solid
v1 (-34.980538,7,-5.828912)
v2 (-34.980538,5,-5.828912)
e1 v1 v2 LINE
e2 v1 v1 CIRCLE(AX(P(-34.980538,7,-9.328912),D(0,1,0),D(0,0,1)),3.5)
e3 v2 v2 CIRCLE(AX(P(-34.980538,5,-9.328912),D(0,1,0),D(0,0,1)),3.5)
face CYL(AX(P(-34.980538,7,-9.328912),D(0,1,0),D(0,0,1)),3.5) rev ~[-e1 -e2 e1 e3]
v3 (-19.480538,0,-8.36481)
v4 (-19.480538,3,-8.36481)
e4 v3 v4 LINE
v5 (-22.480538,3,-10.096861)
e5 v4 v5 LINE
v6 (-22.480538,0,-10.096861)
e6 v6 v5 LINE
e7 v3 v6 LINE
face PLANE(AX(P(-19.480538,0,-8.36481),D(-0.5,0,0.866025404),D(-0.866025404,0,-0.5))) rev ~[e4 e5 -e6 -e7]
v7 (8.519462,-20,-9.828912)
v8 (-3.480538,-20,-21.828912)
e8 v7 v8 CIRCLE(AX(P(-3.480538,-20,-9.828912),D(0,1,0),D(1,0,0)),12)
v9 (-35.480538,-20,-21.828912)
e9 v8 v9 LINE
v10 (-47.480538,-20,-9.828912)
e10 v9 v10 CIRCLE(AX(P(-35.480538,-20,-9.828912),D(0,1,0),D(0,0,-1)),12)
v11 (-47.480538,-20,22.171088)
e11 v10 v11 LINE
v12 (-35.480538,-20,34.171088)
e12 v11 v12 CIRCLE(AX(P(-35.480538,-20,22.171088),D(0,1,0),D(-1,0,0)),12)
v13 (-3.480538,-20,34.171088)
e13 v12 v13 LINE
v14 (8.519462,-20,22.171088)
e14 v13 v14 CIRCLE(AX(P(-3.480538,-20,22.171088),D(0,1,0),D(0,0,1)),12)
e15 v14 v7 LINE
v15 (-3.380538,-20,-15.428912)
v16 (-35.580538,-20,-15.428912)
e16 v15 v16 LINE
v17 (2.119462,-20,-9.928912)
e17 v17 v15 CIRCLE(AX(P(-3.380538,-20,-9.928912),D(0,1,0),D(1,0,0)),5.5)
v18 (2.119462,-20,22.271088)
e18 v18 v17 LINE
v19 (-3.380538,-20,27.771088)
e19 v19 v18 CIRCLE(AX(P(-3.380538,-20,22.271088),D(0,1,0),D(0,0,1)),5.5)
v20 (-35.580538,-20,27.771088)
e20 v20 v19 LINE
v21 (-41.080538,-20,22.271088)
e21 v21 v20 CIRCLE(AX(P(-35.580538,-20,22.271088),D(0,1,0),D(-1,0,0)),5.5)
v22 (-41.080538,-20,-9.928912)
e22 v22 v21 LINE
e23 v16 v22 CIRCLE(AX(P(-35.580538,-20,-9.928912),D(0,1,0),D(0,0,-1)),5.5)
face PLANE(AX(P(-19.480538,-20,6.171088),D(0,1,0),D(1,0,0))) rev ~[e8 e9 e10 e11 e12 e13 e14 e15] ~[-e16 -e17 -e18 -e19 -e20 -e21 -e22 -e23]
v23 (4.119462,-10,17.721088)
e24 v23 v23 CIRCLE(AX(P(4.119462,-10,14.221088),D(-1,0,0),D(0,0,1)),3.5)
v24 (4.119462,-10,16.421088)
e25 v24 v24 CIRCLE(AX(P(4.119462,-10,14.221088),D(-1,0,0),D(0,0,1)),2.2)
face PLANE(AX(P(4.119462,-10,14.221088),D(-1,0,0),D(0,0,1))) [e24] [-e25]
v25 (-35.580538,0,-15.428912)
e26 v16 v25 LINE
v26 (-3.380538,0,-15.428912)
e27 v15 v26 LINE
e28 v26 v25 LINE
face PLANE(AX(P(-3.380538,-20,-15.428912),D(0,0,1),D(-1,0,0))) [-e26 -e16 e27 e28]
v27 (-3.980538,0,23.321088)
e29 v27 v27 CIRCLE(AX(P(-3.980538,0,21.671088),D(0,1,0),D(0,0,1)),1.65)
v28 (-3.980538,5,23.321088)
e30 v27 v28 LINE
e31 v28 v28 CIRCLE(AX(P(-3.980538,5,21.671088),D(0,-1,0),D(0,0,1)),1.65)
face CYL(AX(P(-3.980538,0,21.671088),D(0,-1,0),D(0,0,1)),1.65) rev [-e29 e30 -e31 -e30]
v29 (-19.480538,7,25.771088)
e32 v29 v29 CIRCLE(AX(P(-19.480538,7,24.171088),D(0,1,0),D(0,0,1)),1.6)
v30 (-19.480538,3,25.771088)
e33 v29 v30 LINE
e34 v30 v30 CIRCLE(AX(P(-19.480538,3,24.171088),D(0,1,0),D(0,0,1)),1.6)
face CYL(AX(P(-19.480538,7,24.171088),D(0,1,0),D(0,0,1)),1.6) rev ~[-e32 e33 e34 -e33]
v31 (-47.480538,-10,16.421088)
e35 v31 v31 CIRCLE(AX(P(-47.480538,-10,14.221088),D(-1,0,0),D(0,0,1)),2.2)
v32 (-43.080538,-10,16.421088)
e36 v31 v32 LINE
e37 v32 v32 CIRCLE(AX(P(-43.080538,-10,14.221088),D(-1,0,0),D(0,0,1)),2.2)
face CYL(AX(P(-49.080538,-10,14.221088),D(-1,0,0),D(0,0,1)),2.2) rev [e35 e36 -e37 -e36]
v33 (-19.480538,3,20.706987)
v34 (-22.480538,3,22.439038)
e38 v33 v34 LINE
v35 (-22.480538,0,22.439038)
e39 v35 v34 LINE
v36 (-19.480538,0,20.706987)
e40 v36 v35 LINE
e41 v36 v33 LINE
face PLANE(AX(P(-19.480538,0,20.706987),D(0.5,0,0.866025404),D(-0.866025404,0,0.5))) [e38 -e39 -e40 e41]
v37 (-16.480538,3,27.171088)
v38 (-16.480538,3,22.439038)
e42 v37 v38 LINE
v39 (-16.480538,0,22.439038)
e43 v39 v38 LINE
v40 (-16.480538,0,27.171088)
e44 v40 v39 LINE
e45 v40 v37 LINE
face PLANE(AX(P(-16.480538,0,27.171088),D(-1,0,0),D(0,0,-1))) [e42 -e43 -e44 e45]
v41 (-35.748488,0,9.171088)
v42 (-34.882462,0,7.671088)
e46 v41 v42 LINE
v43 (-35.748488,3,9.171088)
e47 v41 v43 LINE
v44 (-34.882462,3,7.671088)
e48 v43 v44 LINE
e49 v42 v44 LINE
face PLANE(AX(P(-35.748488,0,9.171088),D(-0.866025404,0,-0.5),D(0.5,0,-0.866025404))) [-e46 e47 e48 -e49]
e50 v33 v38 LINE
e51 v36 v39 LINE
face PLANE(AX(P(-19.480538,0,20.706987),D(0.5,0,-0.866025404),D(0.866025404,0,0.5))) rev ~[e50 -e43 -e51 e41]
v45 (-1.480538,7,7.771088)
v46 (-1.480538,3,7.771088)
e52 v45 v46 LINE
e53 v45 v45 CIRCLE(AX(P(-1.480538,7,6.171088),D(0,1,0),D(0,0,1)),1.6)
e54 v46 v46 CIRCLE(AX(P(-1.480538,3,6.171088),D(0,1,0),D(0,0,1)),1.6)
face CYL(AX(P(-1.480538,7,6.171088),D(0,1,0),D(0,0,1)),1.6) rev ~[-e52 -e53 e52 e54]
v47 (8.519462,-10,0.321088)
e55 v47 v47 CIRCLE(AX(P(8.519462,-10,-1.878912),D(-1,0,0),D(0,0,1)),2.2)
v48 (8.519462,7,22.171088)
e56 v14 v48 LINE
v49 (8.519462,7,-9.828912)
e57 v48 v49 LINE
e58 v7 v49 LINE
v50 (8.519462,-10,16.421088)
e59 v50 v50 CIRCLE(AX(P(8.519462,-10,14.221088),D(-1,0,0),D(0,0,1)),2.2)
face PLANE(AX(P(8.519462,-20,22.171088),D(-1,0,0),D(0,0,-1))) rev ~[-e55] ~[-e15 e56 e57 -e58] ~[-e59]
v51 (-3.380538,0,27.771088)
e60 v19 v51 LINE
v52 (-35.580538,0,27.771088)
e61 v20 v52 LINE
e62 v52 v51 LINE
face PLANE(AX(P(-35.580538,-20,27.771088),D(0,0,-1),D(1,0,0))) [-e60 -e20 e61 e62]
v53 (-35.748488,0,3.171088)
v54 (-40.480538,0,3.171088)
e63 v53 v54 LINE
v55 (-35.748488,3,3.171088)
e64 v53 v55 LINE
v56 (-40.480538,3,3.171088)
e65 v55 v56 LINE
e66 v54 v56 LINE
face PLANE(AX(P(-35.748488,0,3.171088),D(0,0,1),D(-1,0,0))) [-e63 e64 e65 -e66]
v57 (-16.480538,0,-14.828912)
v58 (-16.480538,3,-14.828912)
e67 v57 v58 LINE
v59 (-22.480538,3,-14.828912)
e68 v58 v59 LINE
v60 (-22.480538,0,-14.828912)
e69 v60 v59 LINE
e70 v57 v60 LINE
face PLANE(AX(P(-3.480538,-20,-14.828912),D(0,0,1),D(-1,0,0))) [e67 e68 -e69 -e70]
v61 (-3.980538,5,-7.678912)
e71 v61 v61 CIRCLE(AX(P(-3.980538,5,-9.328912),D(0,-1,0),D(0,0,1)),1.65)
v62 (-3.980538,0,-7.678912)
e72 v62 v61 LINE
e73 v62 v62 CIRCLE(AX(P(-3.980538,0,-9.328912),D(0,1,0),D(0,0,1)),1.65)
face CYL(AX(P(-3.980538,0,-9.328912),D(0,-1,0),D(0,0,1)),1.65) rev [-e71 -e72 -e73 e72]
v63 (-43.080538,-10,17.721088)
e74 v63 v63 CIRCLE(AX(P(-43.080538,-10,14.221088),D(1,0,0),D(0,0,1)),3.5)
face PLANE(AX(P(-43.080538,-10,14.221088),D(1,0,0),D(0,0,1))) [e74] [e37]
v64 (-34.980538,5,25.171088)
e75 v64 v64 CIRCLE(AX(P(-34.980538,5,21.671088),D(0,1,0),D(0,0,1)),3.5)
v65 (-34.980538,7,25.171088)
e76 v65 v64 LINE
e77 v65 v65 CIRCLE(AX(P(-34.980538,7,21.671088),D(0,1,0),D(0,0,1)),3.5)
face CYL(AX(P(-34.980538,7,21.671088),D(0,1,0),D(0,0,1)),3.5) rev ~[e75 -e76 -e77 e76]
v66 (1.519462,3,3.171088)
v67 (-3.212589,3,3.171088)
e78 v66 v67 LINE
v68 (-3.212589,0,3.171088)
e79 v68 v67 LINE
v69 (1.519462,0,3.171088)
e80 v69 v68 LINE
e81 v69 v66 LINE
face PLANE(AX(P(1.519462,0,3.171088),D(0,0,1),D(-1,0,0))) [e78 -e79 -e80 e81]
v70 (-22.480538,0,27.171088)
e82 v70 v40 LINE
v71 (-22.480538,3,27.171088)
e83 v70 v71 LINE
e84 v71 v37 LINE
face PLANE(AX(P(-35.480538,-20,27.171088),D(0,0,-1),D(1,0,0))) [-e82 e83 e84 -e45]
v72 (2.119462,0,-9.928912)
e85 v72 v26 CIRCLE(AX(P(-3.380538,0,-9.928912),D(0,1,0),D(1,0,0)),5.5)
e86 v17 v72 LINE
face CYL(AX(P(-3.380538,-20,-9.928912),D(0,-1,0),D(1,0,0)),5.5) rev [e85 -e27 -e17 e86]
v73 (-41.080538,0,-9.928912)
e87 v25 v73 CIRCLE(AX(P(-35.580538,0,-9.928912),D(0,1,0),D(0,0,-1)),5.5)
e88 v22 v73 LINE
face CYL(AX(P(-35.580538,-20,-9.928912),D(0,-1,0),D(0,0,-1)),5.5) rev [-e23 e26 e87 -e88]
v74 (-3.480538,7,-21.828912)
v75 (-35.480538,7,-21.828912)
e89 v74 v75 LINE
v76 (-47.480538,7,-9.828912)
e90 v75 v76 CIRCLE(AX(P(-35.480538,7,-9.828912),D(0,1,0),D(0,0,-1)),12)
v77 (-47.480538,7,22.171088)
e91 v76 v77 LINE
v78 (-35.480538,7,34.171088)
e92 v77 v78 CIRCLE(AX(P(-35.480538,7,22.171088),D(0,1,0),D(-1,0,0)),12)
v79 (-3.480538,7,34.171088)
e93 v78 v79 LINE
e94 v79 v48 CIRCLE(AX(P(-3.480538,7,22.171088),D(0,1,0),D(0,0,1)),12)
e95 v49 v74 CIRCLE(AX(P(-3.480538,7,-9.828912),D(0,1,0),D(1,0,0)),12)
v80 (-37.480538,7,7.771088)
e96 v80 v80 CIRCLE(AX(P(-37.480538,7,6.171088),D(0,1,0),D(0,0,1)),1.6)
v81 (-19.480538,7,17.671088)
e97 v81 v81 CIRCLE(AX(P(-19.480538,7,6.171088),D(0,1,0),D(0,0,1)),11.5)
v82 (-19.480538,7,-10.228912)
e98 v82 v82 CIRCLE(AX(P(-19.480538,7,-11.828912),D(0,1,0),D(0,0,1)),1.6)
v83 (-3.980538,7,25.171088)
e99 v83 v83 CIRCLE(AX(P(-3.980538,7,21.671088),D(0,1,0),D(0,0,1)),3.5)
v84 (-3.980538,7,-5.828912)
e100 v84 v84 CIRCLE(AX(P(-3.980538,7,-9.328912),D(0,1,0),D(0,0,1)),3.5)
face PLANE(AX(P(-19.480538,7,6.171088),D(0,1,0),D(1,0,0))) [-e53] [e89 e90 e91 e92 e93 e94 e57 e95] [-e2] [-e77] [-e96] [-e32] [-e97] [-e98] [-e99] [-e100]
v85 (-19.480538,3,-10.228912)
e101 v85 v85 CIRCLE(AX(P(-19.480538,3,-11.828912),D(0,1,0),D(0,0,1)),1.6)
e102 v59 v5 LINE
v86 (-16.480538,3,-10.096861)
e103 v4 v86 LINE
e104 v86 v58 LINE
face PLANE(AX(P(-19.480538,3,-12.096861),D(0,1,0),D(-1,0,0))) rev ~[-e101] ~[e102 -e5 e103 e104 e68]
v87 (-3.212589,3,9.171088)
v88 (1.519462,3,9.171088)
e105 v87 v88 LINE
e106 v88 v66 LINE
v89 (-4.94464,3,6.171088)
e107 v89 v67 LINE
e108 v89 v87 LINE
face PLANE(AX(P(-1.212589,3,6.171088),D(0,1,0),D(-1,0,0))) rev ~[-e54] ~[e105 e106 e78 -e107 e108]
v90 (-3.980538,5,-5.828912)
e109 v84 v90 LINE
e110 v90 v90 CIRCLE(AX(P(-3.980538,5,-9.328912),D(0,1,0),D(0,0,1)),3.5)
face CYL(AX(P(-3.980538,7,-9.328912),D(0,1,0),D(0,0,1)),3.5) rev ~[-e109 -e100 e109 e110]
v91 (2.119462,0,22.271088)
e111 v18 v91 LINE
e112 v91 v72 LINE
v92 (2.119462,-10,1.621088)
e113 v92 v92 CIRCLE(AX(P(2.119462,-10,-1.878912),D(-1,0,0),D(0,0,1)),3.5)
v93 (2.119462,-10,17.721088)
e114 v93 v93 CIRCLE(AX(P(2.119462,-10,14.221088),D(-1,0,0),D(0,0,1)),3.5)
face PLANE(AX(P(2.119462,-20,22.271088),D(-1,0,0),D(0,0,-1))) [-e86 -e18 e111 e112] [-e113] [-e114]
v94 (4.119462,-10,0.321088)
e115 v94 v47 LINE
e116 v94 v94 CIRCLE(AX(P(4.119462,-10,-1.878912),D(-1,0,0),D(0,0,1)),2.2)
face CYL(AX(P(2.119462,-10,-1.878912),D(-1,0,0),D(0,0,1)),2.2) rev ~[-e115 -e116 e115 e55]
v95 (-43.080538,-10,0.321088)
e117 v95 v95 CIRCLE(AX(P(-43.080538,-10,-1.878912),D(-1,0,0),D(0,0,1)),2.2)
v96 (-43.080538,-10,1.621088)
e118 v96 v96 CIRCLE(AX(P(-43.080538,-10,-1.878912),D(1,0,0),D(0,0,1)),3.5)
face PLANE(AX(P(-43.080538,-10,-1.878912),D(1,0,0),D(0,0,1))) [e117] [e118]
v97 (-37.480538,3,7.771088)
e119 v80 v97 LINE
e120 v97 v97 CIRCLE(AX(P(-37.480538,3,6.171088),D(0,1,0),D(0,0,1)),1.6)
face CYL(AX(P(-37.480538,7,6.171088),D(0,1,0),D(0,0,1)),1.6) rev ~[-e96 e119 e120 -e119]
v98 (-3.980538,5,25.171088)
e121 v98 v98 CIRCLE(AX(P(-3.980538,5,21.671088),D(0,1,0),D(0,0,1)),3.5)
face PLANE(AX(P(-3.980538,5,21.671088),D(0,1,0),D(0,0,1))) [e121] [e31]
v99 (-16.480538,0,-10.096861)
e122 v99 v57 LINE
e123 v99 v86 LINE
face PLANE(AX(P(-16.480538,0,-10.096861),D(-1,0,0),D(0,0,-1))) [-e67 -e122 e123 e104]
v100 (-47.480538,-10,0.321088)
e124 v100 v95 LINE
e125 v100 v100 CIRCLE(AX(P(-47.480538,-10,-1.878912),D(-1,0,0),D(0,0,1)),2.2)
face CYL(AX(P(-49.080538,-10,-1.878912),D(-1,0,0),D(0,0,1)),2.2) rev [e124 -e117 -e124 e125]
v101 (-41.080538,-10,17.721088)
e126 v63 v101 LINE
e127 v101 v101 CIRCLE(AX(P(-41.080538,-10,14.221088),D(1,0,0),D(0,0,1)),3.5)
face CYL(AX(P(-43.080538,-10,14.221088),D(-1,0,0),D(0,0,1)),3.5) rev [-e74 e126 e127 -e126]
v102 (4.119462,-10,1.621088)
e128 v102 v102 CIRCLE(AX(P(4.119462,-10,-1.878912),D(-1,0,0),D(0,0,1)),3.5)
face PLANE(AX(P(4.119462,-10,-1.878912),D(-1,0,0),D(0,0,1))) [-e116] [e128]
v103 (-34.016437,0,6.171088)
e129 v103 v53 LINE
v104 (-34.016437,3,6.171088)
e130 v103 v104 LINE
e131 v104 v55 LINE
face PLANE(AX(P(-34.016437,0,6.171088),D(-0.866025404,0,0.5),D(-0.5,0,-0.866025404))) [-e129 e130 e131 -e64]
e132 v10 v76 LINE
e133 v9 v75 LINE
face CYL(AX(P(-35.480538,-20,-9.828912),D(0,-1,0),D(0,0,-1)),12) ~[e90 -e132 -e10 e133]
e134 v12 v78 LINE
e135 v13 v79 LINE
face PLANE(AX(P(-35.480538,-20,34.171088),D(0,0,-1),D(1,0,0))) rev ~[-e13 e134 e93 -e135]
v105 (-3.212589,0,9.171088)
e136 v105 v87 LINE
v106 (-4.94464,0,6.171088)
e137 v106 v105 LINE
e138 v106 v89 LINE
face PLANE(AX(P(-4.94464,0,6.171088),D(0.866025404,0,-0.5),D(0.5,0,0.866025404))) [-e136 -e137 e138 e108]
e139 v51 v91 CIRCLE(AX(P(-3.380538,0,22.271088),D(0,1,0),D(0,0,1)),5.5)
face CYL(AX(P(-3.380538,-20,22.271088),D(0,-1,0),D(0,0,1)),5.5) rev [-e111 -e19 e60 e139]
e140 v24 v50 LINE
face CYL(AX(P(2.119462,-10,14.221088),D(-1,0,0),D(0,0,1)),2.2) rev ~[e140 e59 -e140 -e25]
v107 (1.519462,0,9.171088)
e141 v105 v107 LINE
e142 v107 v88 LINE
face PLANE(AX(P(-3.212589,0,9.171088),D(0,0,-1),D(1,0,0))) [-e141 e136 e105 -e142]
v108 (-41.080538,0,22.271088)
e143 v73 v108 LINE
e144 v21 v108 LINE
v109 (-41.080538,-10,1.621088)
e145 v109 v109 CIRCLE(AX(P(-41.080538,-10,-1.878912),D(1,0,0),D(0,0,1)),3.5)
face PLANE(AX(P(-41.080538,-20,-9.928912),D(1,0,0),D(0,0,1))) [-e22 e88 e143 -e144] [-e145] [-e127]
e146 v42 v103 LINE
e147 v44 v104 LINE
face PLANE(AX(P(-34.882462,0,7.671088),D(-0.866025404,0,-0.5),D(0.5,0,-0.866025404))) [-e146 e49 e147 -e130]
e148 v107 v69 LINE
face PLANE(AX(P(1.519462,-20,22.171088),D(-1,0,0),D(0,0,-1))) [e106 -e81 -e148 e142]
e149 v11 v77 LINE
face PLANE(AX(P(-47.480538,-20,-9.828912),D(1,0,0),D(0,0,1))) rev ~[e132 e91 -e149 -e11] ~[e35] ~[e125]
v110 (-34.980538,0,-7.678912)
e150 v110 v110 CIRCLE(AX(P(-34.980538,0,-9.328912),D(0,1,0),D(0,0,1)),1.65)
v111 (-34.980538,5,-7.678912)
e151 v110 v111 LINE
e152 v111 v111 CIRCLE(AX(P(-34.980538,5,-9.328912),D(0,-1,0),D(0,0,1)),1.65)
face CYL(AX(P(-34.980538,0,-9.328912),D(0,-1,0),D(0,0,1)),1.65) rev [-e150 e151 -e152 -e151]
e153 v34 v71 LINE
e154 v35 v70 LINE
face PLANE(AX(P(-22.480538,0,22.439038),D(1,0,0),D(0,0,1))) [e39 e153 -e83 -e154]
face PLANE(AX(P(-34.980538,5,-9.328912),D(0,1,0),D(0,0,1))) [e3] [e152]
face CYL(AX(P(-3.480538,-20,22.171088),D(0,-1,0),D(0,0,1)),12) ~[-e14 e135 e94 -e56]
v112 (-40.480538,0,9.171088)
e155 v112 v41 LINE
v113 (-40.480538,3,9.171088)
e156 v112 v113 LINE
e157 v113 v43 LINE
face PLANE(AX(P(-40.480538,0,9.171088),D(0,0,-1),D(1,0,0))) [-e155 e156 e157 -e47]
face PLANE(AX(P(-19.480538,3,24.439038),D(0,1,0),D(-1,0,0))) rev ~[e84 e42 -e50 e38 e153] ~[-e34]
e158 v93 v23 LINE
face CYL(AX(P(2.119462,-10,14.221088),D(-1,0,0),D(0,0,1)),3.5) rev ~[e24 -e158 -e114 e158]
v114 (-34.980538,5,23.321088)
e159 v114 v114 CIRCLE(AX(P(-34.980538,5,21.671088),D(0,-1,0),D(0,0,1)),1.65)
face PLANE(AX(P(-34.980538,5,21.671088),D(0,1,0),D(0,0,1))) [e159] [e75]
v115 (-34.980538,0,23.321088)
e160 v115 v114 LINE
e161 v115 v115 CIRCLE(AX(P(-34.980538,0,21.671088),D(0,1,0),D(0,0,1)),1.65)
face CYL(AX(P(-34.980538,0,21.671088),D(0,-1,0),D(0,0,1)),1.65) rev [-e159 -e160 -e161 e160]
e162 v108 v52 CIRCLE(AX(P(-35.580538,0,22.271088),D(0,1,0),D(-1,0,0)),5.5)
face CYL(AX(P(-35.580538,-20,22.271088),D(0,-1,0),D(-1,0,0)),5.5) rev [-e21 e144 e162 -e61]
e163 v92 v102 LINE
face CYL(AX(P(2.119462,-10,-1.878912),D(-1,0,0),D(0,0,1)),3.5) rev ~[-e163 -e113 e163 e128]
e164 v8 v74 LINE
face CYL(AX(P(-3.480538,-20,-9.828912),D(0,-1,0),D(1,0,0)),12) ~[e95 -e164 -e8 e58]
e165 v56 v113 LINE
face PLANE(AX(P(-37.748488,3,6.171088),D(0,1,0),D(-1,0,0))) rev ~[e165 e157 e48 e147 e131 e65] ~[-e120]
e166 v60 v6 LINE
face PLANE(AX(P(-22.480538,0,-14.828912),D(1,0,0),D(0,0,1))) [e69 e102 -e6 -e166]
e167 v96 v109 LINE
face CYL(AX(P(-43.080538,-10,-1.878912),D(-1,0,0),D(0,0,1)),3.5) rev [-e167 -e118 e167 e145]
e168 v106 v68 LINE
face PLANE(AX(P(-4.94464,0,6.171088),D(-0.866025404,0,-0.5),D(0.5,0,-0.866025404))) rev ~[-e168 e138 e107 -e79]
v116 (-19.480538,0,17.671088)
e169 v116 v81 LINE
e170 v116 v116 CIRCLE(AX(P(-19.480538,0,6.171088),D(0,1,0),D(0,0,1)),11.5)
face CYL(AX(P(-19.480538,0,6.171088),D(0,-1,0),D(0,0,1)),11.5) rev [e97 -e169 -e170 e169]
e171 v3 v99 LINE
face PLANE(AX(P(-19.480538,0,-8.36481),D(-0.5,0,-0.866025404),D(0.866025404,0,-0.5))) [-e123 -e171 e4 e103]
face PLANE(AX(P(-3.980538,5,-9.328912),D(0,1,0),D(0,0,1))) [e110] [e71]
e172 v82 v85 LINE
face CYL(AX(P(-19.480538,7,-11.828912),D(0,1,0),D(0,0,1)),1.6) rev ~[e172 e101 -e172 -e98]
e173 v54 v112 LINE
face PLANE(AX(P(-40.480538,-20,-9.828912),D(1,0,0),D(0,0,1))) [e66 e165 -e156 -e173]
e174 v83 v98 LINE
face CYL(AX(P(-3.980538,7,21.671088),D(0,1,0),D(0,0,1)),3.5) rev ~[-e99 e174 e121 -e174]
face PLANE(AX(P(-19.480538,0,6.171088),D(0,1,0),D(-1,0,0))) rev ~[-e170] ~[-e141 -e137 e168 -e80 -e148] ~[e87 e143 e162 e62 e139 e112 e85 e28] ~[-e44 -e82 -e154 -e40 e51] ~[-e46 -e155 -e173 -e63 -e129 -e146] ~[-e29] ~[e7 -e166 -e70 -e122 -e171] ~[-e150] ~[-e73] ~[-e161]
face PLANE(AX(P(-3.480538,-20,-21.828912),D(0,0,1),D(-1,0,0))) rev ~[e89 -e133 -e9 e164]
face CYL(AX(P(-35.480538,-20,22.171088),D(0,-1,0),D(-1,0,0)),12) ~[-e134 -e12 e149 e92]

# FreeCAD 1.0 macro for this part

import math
import FreeCAD as App
import Part
import Sketcher

V = App.Vector
Q = App.Units.Quantity

doc = App.newDocument("Part")
body = doc.addObject("PartDesign::Body", "Body")

sketch1 = body.newObject("Sketcher::SketchObject", "Sketch")
sketch1.AttachmentSupport = (doc.getObject("XZ_Plane"), [""])
sketch1.MapMode = "FlatFace"
sketch1.addGeometry([
    Part.LineSegment(V(-3.5, -14.8, 0), V(-35.5, -14.8, 0)),
    Part.ArcOfCircle(Part.Circle(V(-35.5, -9.8, 0), V(0, 0, 1), 5), math.radians(180), math.radians(270)),
    Part.LineSegment(V(-40.5, -9.8, 0), V(-40.5, 22.2, 0)),
    Part.ArcOfCircle(Part.Circle(V(-35.5, 22.2, 0), V(0, 0, 1), 5), math.radians(90), math.radians(180)),
    Part.LineSegment(V(-35.5, 27.2, 0), V(-3.5, 27.2, 0)),
    Part.ArcOfCircle(Part.Circle(V(-3.5, 22.2, 0), V(0, 0, 1), 5), math.radians(0), math.radians(90)),
    Part.LineSegment(V(1.5, 22.2, 0), V(1.5, -9.8, 0)),
    Part.ArcOfCircle(Part.Circle(V(-3.5, -9.8, 0), V(0, 0, 1), 5), math.radians(-90), math.radians(0)),
    Part.Circle(V(-4, 21.7, 0), V(0, 0, 1), 1.6),
    Part.Circle(V(-35, 21.7, 0), V(0, 0, 1), 1.6),
    Part.Circle(V(-19.5, 6.2, 0), V(0, 0, 1), 11.5),
    Part.Circle(V(-4, -9.3, 0), V(0, 0, 1), 1.6),
    Part.Circle(V(-35, -9.3, 0), V(0, 0, 1), 1.6),
], False)
sketch1.addConstraint([
    Sketcher.Constraint("Tangent", 0, 2, 1, 2),
    Sketcher.Constraint("Tangent", 1, 1, 2, 1),
    Sketcher.Constraint("Tangent", 2, 2, 3, 2),
    Sketcher.Constraint("Tangent", 3, 1, 4, 1),
    Sketcher.Constraint("Tangent", 4, 2, 5, 2),
    Sketcher.Constraint("Tangent", 5, 1, 6, 1),
    Sketcher.Constraint("Tangent", 6, 2, 7, 2),
    Sketcher.Constraint("Tangent", 7, 1, 0, 1),
    Sketcher.Constraint("Horizontal", 0),
    Sketcher.Constraint("Vertical", 2),
    Sketcher.Constraint("Horizontal", 4),
    Sketcher.Constraint("Vertical", 6),
    Sketcher.Constraint("Equal", 1, 3),
    Sketcher.Constraint("Equal", 3, 5),
    Sketcher.Constraint("Equal", 5, 7),
    Sketcher.Constraint("Equal", 8, 9),
    Sketcher.Constraint("Equal", 9, 11),
    Sketcher.Constraint("Equal", 11, 12),
    Sketcher.Constraint("Horizontal", 8, 3, 9, 3),
    Sketcher.Constraint("Horizontal", 11, 3, 12, 3),
    Sketcher.Constraint("Vertical", 8, 3, 11, 3),
    Sketcher.Constraint("Vertical", 9, 3, 12, 3),
    Sketcher.Constraint("Equal", 4, 2),
    Sketcher.Constraint("Diameter", 10, Q("23 mm")),
    Sketcher.Constraint("Radius", 1, Q("5 mm")),
    Sketcher.Constraint("Diameter", 8, Q("3.3 mm")),
    Sketcher.Constraint("DistanceX", 0, 2, 0, 1, Q("32 mm")),
    Sketcher.Constraint("DistanceX", 9, 3, 8, 3, Q("31 mm")),
    Sketcher.Constraint("DistanceX", 1, 3, 10, 3, Q("16 mm")),
    Sketcher.Constraint("DistanceY", 1, 3, 10, 3, Q("16 mm")),
    Sketcher.Constraint("DistanceY", 11, 3, 8, 3, Q("31 mm")),
    Sketcher.Constraint("DistanceX", 8, 3, 5, 3, Q("0.5 mm")),
    Sketcher.Constraint("DistanceY", 8, 3, 5, 3, Q("0.5 mm")),
    Sketcher.Constraint("DistanceX", 1, 3, -1, 1, Q("35.480538 mm")),
    Sketcher.Constraint("DistanceY", 1, 3, -1, 1, Q("9.828912 mm")),
])
pad1 = body.newObject("PartDesign::Pad", "Pad")
pad1.Profile = sketch1
pad1.Length = 7
pad1.Reversed = True

sketch2 = body.newObject("Sketcher::SketchObject", "Sketch001")
sketch2.AttachmentSupport = (doc.getObject("XZ_Plane"), [""])
sketch2.MapMode = "FlatFace"
sketch2.addGeometry([
    Part.LineSegment(V(-16.5, 27.2, 0), V(-22.5, 27.2, 0)),
    Part.LineSegment(V(-22.5, 27.2, 0), V(-22.5, 22.4, 0)),
    Part.LineSegment(V(-22.5, 22.4, 0), V(-19.5, 20.7, 0)),
    Part.LineSegment(V(-19.5, 20.7, 0), V(-16.5, 22.4, 0)),
    Part.LineSegment(V(-16.5, 22.4, 0), V(-16.5, 27.2, 0)),
    Part.LineSegment(V(-3.2, 3.2, 0), V(1.5, 3.2, 0)),
    Part.LineSegment(V(1.5, 3.2, 0), V(1.5, 9.2, 0)),
    Part.LineSegment(V(1.5, 9.2, 0), V(-3.2, 9.2, 0)),
    Part.LineSegment(V(-3.2, 9.2, 0), V(-4.9, 6.2, 0)),
    Part.LineSegment(V(-4.9, 6.2, 0), V(-3.2, 3.2, 0)),
    Part.LineSegment(V(-22.5, -10.1, 0), V(-22.5, -14.8, 0)),
    Part.LineSegment(V(-22.5, -14.8, 0), V(-16.5, -14.8, 0)),
    Part.LineSegment(V(-16.5, -14.8, 0), V(-16.5, -10.1, 0)),
    Part.LineSegment(V(-16.5, -10.1, 0), V(-19.5, -8.4, 0)),
    Part.LineSegment(V(-19.5, -8.4, 0), V(-22.5, -10.1, 0)),
    Part.LineSegment(V(-35.7, 9.2, 0), V(-40.5, 9.2, 0)),
    Part.LineSegment(V(-40.5, 9.2, 0), V(-40.5, 3.2, 0)),
    Part.LineSegment(V(-40.5, 3.2, 0), V(-35.7, 3.2, 0)),
    Part.LineSegment(V(-35.7, 3.2, 0), V(-34, 6.2, 0)),
    Part.LineSegment(V(-34, 6.2, 0), V(-34.9, 7.7, 0)),
    Part.LineSegment(V(-34.9, 7.7, 0), V(-35.7, 9.2, 0)),
], False)
sketch2.addConstraint([
    Sketcher.Constraint("Coincident", 0, 2, 1, 1),
    Sketcher.Constraint("Coincident", 1, 2, 2, 1),
    Sketcher.Constraint("Coincident", 2, 2, 3, 1),
    Sketcher.Constraint("Coincident", 3, 2, 4, 1),
    Sketcher.Constraint("Coincident", 4, 2, 0, 1),
    Sketcher.Constraint("Coincident", 5, 2, 6, 1),
    Sketcher.Constraint("Coincident", 6, 2, 7, 1),
    Sketcher.Constraint("Coincident", 7, 2, 8, 1),
    Sketcher.Constraint("Coincident", 8, 2, 9, 1),
    Sketcher.Constraint("Coincident", 9, 2, 5, 1),
    Sketcher.Constraint("Coincident", 10, 2, 11, 1),
    Sketcher.Constraint("Coincident", 11, 2, 12, 1),
    Sketcher.Constraint("Coincident", 12, 2, 13, 1),
    Sketcher.Constraint("Coincident", 13, 2, 14, 1),
    Sketcher.Constraint("Coincident", 14, 2, 10, 1),
    Sketcher.Constraint("Coincident", 15, 2, 16, 1),
    Sketcher.Constraint("Coincident", 16, 2, 17, 1),
    Sketcher.Constraint("Coincident", 17, 2, 18, 1),
    Sketcher.Constraint("Coincident", 18, 2, 19, 1),
    Sketcher.Constraint("Coincident", 19, 2, 20, 1),
    Sketcher.Constraint("Coincident", 20, 2, 15, 1),
    Sketcher.Constraint("Horizontal", 0),
    Sketcher.Constraint("Vertical", 1),
    Sketcher.Constraint("Vertical", 4),
    Sketcher.Constraint("Horizontal", 5),
    Sketcher.Constraint("Vertical", 6),
    Sketcher.Constraint("Horizontal", 7),
    Sketcher.Constraint("Vertical", 10),
    Sketcher.Constraint("Horizontal", 11),
    Sketcher.Constraint("Vertical", 12),
    Sketcher.Constraint("Horizontal", 15),
    Sketcher.Constraint("Vertical", 16),
    Sketcher.Constraint("Horizontal", 17),
    Sketcher.Constraint("Perpendicular", 2, 8),
    Sketcher.Constraint("Perpendicular", 3, 9),
    Sketcher.Constraint("Perpendicular", 8, 13),
    Sketcher.Constraint("Perpendicular", 9, 14),
    Sketcher.Constraint("Perpendicular", 13, 18),
    Sketcher.Constraint("Perpendicular", 14, 19),
    Sketcher.Constraint("Parallel", 19, 20),
    Sketcher.Constraint("Horizontal", 1, 2, 3, 2),
    Sketcher.Constraint("Horizontal", 12, 2, 14, 2),
    Sketcher.Constraint("Horizontal", 7, 2, 15, 2),
    Sketcher.Constraint("Horizontal", 9, 2, 16, 2),
    Sketcher.Constraint("Horizontal", 8, 2, 18, 2),
    Sketcher.Constraint("Vertical", 7, 2, 9, 2),
    Sketcher.Constraint("Vertical", 1, 2, 10, 2),
    Sketcher.Constraint("Vertical", 4, 2, 11, 2),
    Sketcher.Constraint("Vertical", 2, 2, 13, 2),
    Sketcher.Constraint("Equal", 7, 15),
    Sketcher.Constraint("Equal", 17, 1),
    Sketcher.Constraint("Equal", 11, 6),
    Sketcher.Constraint("Equal", 4, 10),
    Sketcher.Constraint("Equal", 19, 20),
    Sketcher.Constraint("DistanceX", 0, 2, 0, 1, Q("6 mm")),
    Sketcher.Constraint("Angle", 2, Q("-30 deg")),
    Sketcher.Constraint("DistanceX", 3, 2, 5, 2, Q("18 mm")),
    Sketcher.Constraint("DistanceY", 5, 2, 4, 2, Q("24 mm")),
    Sketcher.Constraint("DistanceY", 10, 2, 9, 2, Q("18 mm")),
    Sketcher.Constraint("DistanceX", 15, 2, 1, 2, Q("18 mm")),
    Sketcher.Constraint("DistanceX", 5, 1, 5, 2, Q("4.732051 mm")),
    Sketcher.Constraint("DistanceX", 0, 2, -1, 1, Q("22.480538 mm")),
    Sketcher.Constraint("DistanceY", -1, 1, 0, 2, Q("27.171088 mm")),
])
pocket1 = body.newObject("PartDesign::Pocket", "Pocket")
pocket1.Profile = sketch2
pocket1.Length = 3

sketch3 = body.newObject("Sketcher::SketchObject", "Sketch002")
sketch3.AttachmentSupport = (doc.getObject("XZ_Plane"), [""])
sketch3.MapMode = "FlatFace"
sketch3.AttachmentOffset = App.Placement(V(0, 0, 20), App.Rotation())
sketch3.addGeometry([
    Part.LineSegment(V(-47, -10, 0), V(-47, 22, 0)),
    Part.ArcOfCircle(Part.Circle(V(-35, 22, 0), V(0, 0, 1), 12), math.radians(90), math.radians(180)),
    Part.LineSegment(V(-35, 34, 0), V(-3, 34, 0)),
    Part.ArcOfCircle(Part.Circle(V(-3, 22, 0), V(0, 0, 1), 12), math.radians(0), math.radians(90)),
    Part.LineSegment(V(9, 22, 0), V(9, -10, 0)),
    Part.ArcOfCircle(Part.Circle(V(-3, -10, 0), V(0, 0, 1), 12), math.radians(-90), math.radians(0)),
    Part.LineSegment(V(-3, -22, 0), V(-35, -22, 0)),
    Part.ArcOfCircle(Part.Circle(V(-35, -10, 0), V(0, 0, 1), 12), math.radians(-180), math.radians(-90)),
    Part.ArcOfCircle(Part.Circle(V(-35, -10, 0), V(0, 0, 1), 5), math.radians(180), math.radians(270)),
    Part.LineSegment(V(-35, -15, 0), V(-3, -15, 0)),
    Part.ArcOfCircle(Part.Circle(V(-3, -10, 0), V(0, 0, 1), 5), math.radians(-90), math.radians(0)),
    Part.LineSegment(V(2, -10, 0), V(2, 22, 0)),
    Part.ArcOfCircle(Part.Circle(V(-3, 22, 0), V(0, 0, 1), 5), math.radians(0), math.radians(90)),
    Part.LineSegment(V(-3, 27, 0), V(-35, 27, 0)),
    Part.ArcOfCircle(Part.Circle(V(-35, 22, 0), V(0, 0, 1), 5), math.radians(90), math.radians(180)),
    Part.LineSegment(V(-40, 22, 0), V(-40, -10, 0)),
], False)
sketch3.addConstraint([
    Sketcher.Constraint("Tangent", 0, 2, 1, 2),
    Sketcher.Constraint("Tangent", 1, 1, 2, 1),
    Sketcher.Constraint("Tangent", 2, 2, 3, 2),
    Sketcher.Constraint("Tangent", 3, 1, 4, 1),
    Sketcher.Constraint("Tangent", 4, 2, 5, 2),
    Sketcher.Constraint("Tangent", 5, 1, 6, 1),
    Sketcher.Constraint("Tangent", 6, 2, 7, 2),
    Sketcher.Constraint("Tangent", 7, 1, 0, 1),
    Sketcher.Constraint("Tangent", 8, 2, 9, 1),
    Sketcher.Constraint("Tangent", 9, 2, 10, 1),
    Sketcher.Constraint("Tangent", 10, 2, 11, 1),
    Sketcher.Constraint("Tangent", 11, 2, 12, 1),
    Sketcher.Constraint("Tangent", 12, 2, 13, 1),
    Sketcher.Constraint("Tangent", 13, 2, 14, 1),
    Sketcher.Constraint("Tangent", 14, 2, 15, 1),
    Sketcher.Constraint("Tangent", 15, 2, 8, 1),
    Sketcher.Constraint("Vertical", 0),
    Sketcher.Constraint("Horizontal", 2),
    Sketcher.Constraint("Vertical", 4),
    Sketcher.Constraint("Horizontal", 6),
    Sketcher.Constraint("Horizontal", 9),
    Sketcher.Constraint("Vertical", 11),
    Sketcher.Constraint("Horizontal", 13),
    Sketcher.Constraint("Vertical", 15),
    Sketcher.Constraint("Coincident", 8, 3, 7, 3),
    Sketcher.Constraint("Coincident", 10, 3, 5, 3),
    Sketcher.Constraint("Coincident", 12, 3, 3, 3),
    Sketcher.Constraint("Equal", 1, 3),
    Sketcher.Constraint("Equal", 3, 5),
    Sketcher.Constraint("Equal", 5, 7),
    Sketcher.Constraint("Equal", 12, 14),
    Sketcher.Constraint("Equal", 13, 0),
    Sketcher.Constraint("Radius", 1, Q("12 mm")),
    Sketcher.Constraint("Radius", 8, Q("5 mm")),
    Sketcher.Constraint("DistanceX", 2, 1, 2, 2, Q("32 mm")),
    Sketcher.Constraint("DistanceX", 1, 3, -1, 1, Q("35.480538 mm")),
    Sketcher.Constraint("DistanceY", -1, 1, 1, 3, Q("22.171088 mm")),
])
pad2 = body.newObject("PartDesign::Pad", "Pad001")
pad2.Profile = sketch3
pad2.Length = 27
pad2.Reversed = True

sketch4 = body.newObject("Sketcher::SketchObject", "Sketch003")
sketch4.AttachmentSupport = (doc.getObject("XZ_Plane"), [""])
sketch4.MapMode = "FlatFace"
sketch4.AttachmentOffset = App.Placement(V(0, 0, 20), App.Rotation())
sketch4.addGeometry([
    Part.LineSegment(V(2, -10, 0), V(2, 22, 0)),
    Part.ArcOfCircle(Part.Circle(V(-3, 22, 0), V(0, 0, 1), 5), math.radians(0), math.radians(90)),
    Part.LineSegment(V(-3, 28, 0), V(-36, 28, 0)),
    Part.ArcOfCircle(Part.Circle(V(-36, 22, 0), V(0, 0, 1), 6), math.radians(90), math.radians(180)),
    Part.LineSegment(V(-41, 22, 0), V(-41, -10, 0)),
    Part.ArcOfCircle(Part.Circle(V(-36, -10, 0), V(0, 0, 1), 6), math.radians(-180), math.radians(-90)),
    Part.LineSegment(V(-36, -15, 0), V(-3, -15, 0)),
    Part.ArcOfCircle(Part.Circle(V(-3, -10, 0), V(0, 0, 1), 6), math.radians(-90), math.radians(0)),
], False)
sketch4.addConstraint([
    Sketcher.Constraint("Tangent", 0, 2, 1, 1),
    Sketcher.Constraint("Tangent", 1, 2, 2, 1),
    Sketcher.Constraint("Tangent", 2, 2, 3, 1),
    Sketcher.Constraint("Tangent", 3, 2, 4, 1),
    Sketcher.Constraint("Tangent", 4, 2, 5, 1),
    Sketcher.Constraint("Tangent", 5, 2, 6, 1),
    Sketcher.Constraint("Tangent", 6, 2, 7, 1),
    Sketcher.Constraint("Tangent", 7, 2, 0, 1),
    Sketcher.Constraint("Vertical", 0),
    Sketcher.Constraint("Horizontal", 2),
    Sketcher.Constraint("Vertical", 4),
    Sketcher.Constraint("Horizontal", 6),
    Sketcher.Constraint("Equal", 1, 3),
    Sketcher.Constraint("Equal", 3, 5),
    Sketcher.Constraint("Equal", 5, 7),
    Sketcher.Constraint("Equal", 6, 0),
    Sketcher.Constraint("Radius", 1, Q("5.5 mm")),
    Sketcher.Constraint("DistanceX", 2, 2, 2, 1, Q("32.2 mm")),
    Sketcher.Constraint("DistanceX", 1, 3, -1, 1, Q("3.380538 mm")),
    Sketcher.Constraint("DistanceY", -1, 1, 1, 3, Q("22.271088 mm")),
])
pocket2 = body.newObject("PartDesign::Pocket", "Pocket001")
pocket2.Profile = sketch4
pocket2.Length = 20

sketch5 = body.newObject("Sketcher::SketchObject", "Sketch004")
sketch5.AttachmentSupport = (doc.getObject("YZ_Plane"), [""])
sketch5.MapMode = "FlatFace"
sketch5.AttachmentOffset = App.Placement(V(0, 0, 2.119462), App.Rotation())
sketch5.addGeometry([
    Part.Circle(V(-10, -1.9, 0), V(0, 0, 1), 2.2),
    Part.Circle(V(-10, 14.2, 0), V(0, 0, 1), 2.2),
], False)
sketch5.addConstraint([
    Sketcher.Constraint("Equal", 0, 1),
    Sketcher.Constraint("Vertical", 0, 3, 1, 3),
    Sketcher.Constraint("Diameter", 0, Q("4.4 mm")),
    Sketcher.Constraint("DistanceX", 0, 3, -1, 1, Q("10 mm")),
    Sketcher.Constraint("DistanceY", 0, 3, 1, 3, Q("16.1 mm")),
    Sketcher.Constraint("DistanceY", 0, 3, -1, 1, Q("1.878912 mm")),
])
pocket3 = body.newObject("PartDesign::Pocket", "Pocket002")
pocket3.Profile = sketch5
pocket3.Length = 27
pocket3.Reversed = True

sketch6 = body.newObject("Sketcher::SketchObject", "Sketch005")
sketch6.AttachmentSupport = (doc.getObject("YZ_Plane"), [""])
sketch6.MapMode = "FlatFace"
sketch6.AttachmentOffset = App.Placement(V(0, 0, 2.119462), App.Rotation())
sketch6.addGeometry([
    Part.Circle(V(-10, -1.9, 0), V(0, 0, 1), 3.5),
    Part.Circle(V(-10, 14.2, 0), V(0, 0, 1), 3.5),
], False)
sketch6.addConstraint([
    Sketcher.Constraint("Equal", 0, 1),
    Sketcher.Constraint("Vertical", 0, 3, 1, 3),
    Sketcher.Constraint("Diameter", 0, Q("7 mm")),
    Sketcher.Constraint("DistanceX", 0, 3, -1, 1, Q("10 mm")),
    Sketcher.Constraint("DistanceY", 0, 3, 1, 3, Q("16.1 mm")),
    Sketcher.Constraint("DistanceY", 0, 3, -1, 1, Q("1.878912 mm")),
])
pocket4 = body.newObject("PartDesign::Pocket", "Pocket003")
pocket4.Profile = sketch6
pocket4.Length = 2
pocket4.Reversed = True

sketch7 = body.newObject("Sketcher::SketchObject", "Sketch006")
sketch7.AttachmentSupport = (doc.getObject("YZ_Plane"), [""])
sketch7.MapMode = "FlatFace"
sketch7.AttachmentOffset = App.Placement(V(0, 0, -49.080538), App.Rotation())
sketch7.addGeometry([
    Part.Circle(V(-10, 14.2, 0), V(0, 0, 1), 2.2),
    Part.Circle(V(-10, -1.9, 0), V(0, 0, 1), 2.2),
], False)
sketch7.addConstraint([
    Sketcher.Constraint("Equal", 0, 1),
    Sketcher.Constraint("Vertical", 0, 3, 1, 3),
    Sketcher.Constraint("Diameter", 0, Q("4.4 mm")),
    Sketcher.Constraint("DistanceX", 0, 3, -1, 1, Q("10 mm")),
    Sketcher.Constraint("DistanceY", 1, 3, 0, 3, Q("16.1 mm")),
    Sketcher.Constraint("DistanceY", -1, 1, 0, 3, Q("14.221088 mm")),
])
pocket5 = body.newObject("PartDesign::Pocket", "Pocket004")
pocket5.Profile = sketch7
pocket5.Length = 8
pocket5.Reversed = True

sketch8 = body.newObject("Sketcher::SketchObject", "Sketch007")
sketch8.AttachmentSupport = (doc.getObject("YZ_Plane"), [""])
sketch8.MapMode = "FlatFace"
sketch8.AttachmentOffset = App.Placement(V(0, 0, -43.080538), App.Rotation())
sketch8.addGeometry([
    Part.Circle(V(-10, 14.2, 0), V(0, 0, 1), 3.5),
    Part.Circle(V(-10, -1.9, 0), V(0, 0, 1), 3.5),
], False)
sketch8.addConstraint([
    Sketcher.Constraint("Equal", 0, 1),
    Sketcher.Constraint("Vertical", 0, 3, 1, 3),
    Sketcher.Constraint("Diameter", 0, Q("7 mm")),
    Sketcher.Constraint("DistanceX", 0, 3, -1, 1, Q("10 mm")),
    Sketcher.Constraint("DistanceY", 1, 3, 0, 3, Q("16.1 mm")),
    Sketcher.Constraint("DistanceY", -1, 1, 0, 3, Q("14.221088 mm")),
])
pocket6 = body.newObject("PartDesign::Pocket", "Pocket005")
pocket6.Profile = sketch8
pocket6.Length = 2
pocket6.Reversed = True

sketch9 = body.newObject("Sketcher::SketchObject", "Sketch008")
sketch9.AttachmentSupport = (doc.getObject("XZ_Plane"), [""])
sketch9.MapMode = "FlatFace"
sketch9.AttachmentOffset = App.Placement(V(0, 0, -7), App.Rotation())
sketch9.addGeometry([
    Part.Circle(V(-35, -9.3, 0), V(0, 0, 1), 3.5),
    Part.Circle(V(-4, -9.3, 0), V(0, 0, 1), 3.5),
    Part.Circle(V(-35, 21.7, 0), V(0, 0, 1), 3.5),
    Part.Circle(V(-4, 21.7, 0), V(0, 0, 1), 3.5),
], False)
sketch9.addConstraint([
    Sketcher.Constraint("Equal", 0, 1),
    Sketcher.Constraint("Equal", 1, 2),
    Sketcher.Constraint("Equal", 2, 3),
    Sketcher.Constraint("Horizontal", 0, 3, 1, 3),
    Sketcher.Constraint("Horizontal", 2, 3, 3, 3),
    Sketcher.Constraint("Vertical", 0, 3, 2, 3),
    Sketcher.Constraint("Vertical", 1, 3, 3, 3),
    Sketcher.Constraint("Diameter", 0, Q("7 mm")),
    Sketcher.Constraint("DistanceX", 0, 3, 1, 3, Q("31 mm")),
    Sketcher.Constraint("DistanceY", 0, 3, 2, 3, Q("31 mm")),
    Sketcher.Constraint("DistanceX", 0, 3, -1, 1, Q("34.980538 mm")),
    Sketcher.Constraint("DistanceY", 0, 3, -1, 1, Q("9.328912 mm")),
])
pocket7 = body.newObject("PartDesign::Pocket", "Pocket006")
pocket7.Profile = sketch9
pocket7.Length = 2
pocket7.Reversed = True

sketch10 = body.newObject("Sketcher::SketchObject", "Sketch009")
sketch10.AttachmentSupport = (doc.getObject("XZ_Plane"), [""])
sketch10.MapMode = "FlatFace"
sketch10.AttachmentOffset = App.Placement(V(0, 0, -7), App.Rotation())
sketch10.addGeometry([
    Part.Circle(V(-19.5, -11.8, 0), V(0, 0, 1), 1.6),
    Part.Circle(V(-37.5, 6.2, 0), V(0, 0, 1), 1.6),
    Part.Circle(V(-19.5, 24.2, 0), V(0, 0, 1), 1.6),
    Part.Circle(V(-1.5, 6.2, 0), V(0, 0, 1), 1.6),
], False)
sketch10.addConstraint([
    Sketcher.Constraint("Equal", 0, 1),
    Sketcher.Constraint("Equal", 1, 2),
    Sketcher.Constraint("Equal", 2, 3),
    Sketcher.Constraint("Horizontal", 1, 3, 3, 3),
    Sketcher.Constraint("Vertical", 0, 3, 2, 3),
    Sketcher.Constraint("Diameter", 0, Q("3.2 mm")),
    Sketcher.Constraint("DistanceX", 1, 3, 0, 3, Q("18 mm")),
    Sketcher.Constraint("DistanceY", 0, 3, 1, 3, Q("18 mm")),
    Sketcher.Constraint("DistanceY", 1, 3, 2, 3, Q("18 mm")),
    Sketcher.Constraint("DistanceX", 0, 3, 3, 3, Q("18 mm")),
    Sketcher.Constraint("DistanceX", 0, 3, -1, 1, Q("19.480538 mm")),
    Sketcher.Constraint("DistanceY", 0, 3, -1, 1, Q("11.828912 mm")),
])
pocket8 = body.newObject("PartDesign::Pocket", "Pocket007")
pocket8.Profile = sketch10
pocket8.Length = 7
pocket8.Reversed = True

doc.recompute()
